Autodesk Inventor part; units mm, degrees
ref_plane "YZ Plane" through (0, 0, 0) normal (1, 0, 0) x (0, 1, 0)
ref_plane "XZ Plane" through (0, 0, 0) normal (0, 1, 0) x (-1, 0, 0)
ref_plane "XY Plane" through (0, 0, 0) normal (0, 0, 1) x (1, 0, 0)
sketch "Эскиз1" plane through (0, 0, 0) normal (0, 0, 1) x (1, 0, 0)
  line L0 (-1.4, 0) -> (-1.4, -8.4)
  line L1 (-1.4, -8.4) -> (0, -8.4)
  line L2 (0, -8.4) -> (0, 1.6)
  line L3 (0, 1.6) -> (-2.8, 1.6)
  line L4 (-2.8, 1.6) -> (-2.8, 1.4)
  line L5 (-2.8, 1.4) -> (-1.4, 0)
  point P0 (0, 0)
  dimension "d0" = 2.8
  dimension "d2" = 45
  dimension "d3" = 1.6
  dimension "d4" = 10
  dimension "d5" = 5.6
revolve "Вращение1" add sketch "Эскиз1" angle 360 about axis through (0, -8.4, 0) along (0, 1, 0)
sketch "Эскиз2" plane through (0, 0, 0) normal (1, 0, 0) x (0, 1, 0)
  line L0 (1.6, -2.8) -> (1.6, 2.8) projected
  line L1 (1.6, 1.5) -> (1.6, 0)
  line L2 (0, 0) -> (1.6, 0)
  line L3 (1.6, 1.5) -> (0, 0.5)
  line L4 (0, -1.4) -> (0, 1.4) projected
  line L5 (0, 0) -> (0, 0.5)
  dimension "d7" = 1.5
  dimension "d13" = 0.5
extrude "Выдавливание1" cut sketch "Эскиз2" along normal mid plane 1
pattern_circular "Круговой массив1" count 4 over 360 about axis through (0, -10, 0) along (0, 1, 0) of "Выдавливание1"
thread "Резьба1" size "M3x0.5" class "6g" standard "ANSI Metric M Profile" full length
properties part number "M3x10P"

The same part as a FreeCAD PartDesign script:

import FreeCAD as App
import Part
import Sketcher
from FreeCAD import Vector
Q = App.Units.Quantity


def add_polygon(sketch, points):
    """Adds a closed chain of lines whose ends are joined by coincident constraints."""
    first, n = sketch.GeometryCount, len(points)
    for a, b in zip(points, points[1:] + points[:1]):
        sketch.addGeometry(Part.LineSegment(App.Vector(*a, 0), App.Vector(*b, 0)), False)
    for i in range(n):
        sketch.addConstraint(Sketcher.Constraint("Coincident", first + i, 2, first + (i + 1) % n, 1))

doc = App.newDocument("Part")
body = doc.addObject("PartDesign::Body", "Body")

sketch1 = body.newObject("Sketcher::SketchObject", "Sketch")
sketch1.AttachmentSupport = (doc.getObject("XY_Plane"), [""])
sketch1.MapMode = "FlatFace"
add_polygon(sketch1, [(-2.8, 1.4), (-1.4, 0), (-1.4, -8.4), (0, -8.4), (0, 1.6), (-2.8, 1.6)])
sketch1.addConstraint(Sketcher.Constraint("Vertical", 1))
sketch1.addConstraint(Sketcher.Constraint("Horizontal", 2))
sketch1.addConstraint(Sketcher.Constraint("Vertical", 3))
sketch1.addConstraint(Sketcher.Constraint("Horizontal", 4))
sketch1.addConstraint(Sketcher.Constraint("Vertical", 5))
sketch1.addConstraint(Sketcher.Constraint("PointOnObject", 0, 2, -1))
sketch1.addConstraint(Sketcher.Constraint("PointOnObject", 2, 2, -2))
sketch1.addConstraint(Sketcher.Constraint("DistanceY", 3, 1, 3, 2, 10.0))
sketch1.addConstraint(Sketcher.Constraint("Angle", 0, Q("-45 deg")))
sketch1.addConstraint(Sketcher.Constraint("DistanceX", 4, 2, 4, 1, 2.8))
sketch1.addConstraint(Sketcher.Constraint("DistanceY", -1, 1, 3, 2, 1.6))
sketch1.addConstraint(Sketcher.Constraint("DistanceX", 2, 1, 2, 2, 1.4))
revolution = body.newObject("PartDesign::Revolution", "Revolution")
revolution.Profile = sketch1
revolution.ReferenceAxis = (sketch1, ["V_Axis"])
revolution.Angle = 360

sketch2 = body.newObject("Sketcher::SketchObject", "Sketch001")
sketch2.AttachmentSupport = (doc.getObject("YZ_Plane"), [""])
sketch2.MapMode = "FlatFace"
add_polygon(sketch2, [(0, 0), (1.6, 0), (1.6, 1.5), (0, 0.5)])
sketch2.addConstraint(Sketcher.Constraint("Horizontal", 0))
sketch2.addConstraint(Sketcher.Constraint("Vertical", 1))
sketch2.addConstraint(Sketcher.Constraint("Vertical", 3))
sketch2.addConstraint(Sketcher.Constraint("Coincident", 3, 2, -1, 1))
sketch2.addConstraint(Sketcher.Constraint("DistanceY", 1, 1, 1, 2, 1.5))
sketch2.addConstraint(Sketcher.Constraint("DistanceY", 3, 2, 3, 1, 0.5))
sketch2.addConstraint(Sketcher.Constraint("DistanceX", 0, 1, 0, 2, 1.6))
pocket1 = body.newObject("PartDesign::Pocket", "Pocket")
pocket1.Profile = sketch2
pocket1.Length = 1
pocket1.Midplane = True
doc.recompute()

polarpattern = body.newObject("PartDesign::PolarPattern", "PolarPattern")
polarpattern.Originals = [pocket1]
polarpattern.Axis = (doc.getObject("Y_Axis"), [""])
polarpattern.Angle = 360
polarpattern.Occurrences = 4
body.Tip = polarpattern

doc.recompute()
